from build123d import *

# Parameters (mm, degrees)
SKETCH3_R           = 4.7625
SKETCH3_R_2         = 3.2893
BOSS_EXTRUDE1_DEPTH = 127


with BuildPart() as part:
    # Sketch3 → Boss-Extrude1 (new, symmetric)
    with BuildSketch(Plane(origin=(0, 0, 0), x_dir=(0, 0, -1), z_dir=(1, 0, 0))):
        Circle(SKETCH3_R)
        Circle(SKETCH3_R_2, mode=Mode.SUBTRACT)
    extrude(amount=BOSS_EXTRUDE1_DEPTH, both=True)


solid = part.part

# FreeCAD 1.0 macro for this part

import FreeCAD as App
import Part
import Sketcher
Q = App.Units.Quantity

doc = App.newDocument("Part")
params = doc.addObject("Spreadsheet::Sheet", "Params")
for row, (alias, value) in enumerate([
    ("sketch1_diameter", "0.375 in"),
    ("sketch1_diameter2", "0.259 in"),
    ("pad1_length", "10 in"),
], start=1):
    params.set(f"A{row}", alias)
    params.set(f"B{row}", "=" + value)
    params.setAlias(f"B{row}", alias)

body = doc.addObject("PartDesign::Body", "Body")

# Sketch on YZ plane
sketch1 = body.newObject("Sketcher::SketchObject", "Sketch")
sketch1.AttachmentSupport = (doc.getObject("YZ_Plane"), [""])
sketch1.MapMode = "FlatFace"
sketch1.addGeometry([
    Part.Circle(App.Vector(0, 0, 0), App.Vector(0, 0, 1), 4.7625),
    Part.Circle(App.Vector(0, 0, 0), App.Vector(0, 0, 1), 3.2893),
], False)
sketch1.addConstraint([
    Sketcher.Constraint("Coincident", 0, 3, -1, 1),
    Sketcher.Constraint("Coincident", 1, 3, -1, 1),
    Sketcher.Constraint("Diameter", 0, Q("0.375 in")),
    Sketcher.Constraint("Diameter", 1, Q("0.259 in")),
])
sketch1.setExpression("Constraints[2]", "Params.sketch1_diameter")
sketch1.setExpression("Constraints[3]", "Params.sketch1_diameter2")
pad1 = body.newObject("PartDesign::Pad", "Pad")
pad1.Profile = sketch1
pad1.setExpression("Length", "Params.pad1_length")
pad1.Midplane = True

doc.recompute()
